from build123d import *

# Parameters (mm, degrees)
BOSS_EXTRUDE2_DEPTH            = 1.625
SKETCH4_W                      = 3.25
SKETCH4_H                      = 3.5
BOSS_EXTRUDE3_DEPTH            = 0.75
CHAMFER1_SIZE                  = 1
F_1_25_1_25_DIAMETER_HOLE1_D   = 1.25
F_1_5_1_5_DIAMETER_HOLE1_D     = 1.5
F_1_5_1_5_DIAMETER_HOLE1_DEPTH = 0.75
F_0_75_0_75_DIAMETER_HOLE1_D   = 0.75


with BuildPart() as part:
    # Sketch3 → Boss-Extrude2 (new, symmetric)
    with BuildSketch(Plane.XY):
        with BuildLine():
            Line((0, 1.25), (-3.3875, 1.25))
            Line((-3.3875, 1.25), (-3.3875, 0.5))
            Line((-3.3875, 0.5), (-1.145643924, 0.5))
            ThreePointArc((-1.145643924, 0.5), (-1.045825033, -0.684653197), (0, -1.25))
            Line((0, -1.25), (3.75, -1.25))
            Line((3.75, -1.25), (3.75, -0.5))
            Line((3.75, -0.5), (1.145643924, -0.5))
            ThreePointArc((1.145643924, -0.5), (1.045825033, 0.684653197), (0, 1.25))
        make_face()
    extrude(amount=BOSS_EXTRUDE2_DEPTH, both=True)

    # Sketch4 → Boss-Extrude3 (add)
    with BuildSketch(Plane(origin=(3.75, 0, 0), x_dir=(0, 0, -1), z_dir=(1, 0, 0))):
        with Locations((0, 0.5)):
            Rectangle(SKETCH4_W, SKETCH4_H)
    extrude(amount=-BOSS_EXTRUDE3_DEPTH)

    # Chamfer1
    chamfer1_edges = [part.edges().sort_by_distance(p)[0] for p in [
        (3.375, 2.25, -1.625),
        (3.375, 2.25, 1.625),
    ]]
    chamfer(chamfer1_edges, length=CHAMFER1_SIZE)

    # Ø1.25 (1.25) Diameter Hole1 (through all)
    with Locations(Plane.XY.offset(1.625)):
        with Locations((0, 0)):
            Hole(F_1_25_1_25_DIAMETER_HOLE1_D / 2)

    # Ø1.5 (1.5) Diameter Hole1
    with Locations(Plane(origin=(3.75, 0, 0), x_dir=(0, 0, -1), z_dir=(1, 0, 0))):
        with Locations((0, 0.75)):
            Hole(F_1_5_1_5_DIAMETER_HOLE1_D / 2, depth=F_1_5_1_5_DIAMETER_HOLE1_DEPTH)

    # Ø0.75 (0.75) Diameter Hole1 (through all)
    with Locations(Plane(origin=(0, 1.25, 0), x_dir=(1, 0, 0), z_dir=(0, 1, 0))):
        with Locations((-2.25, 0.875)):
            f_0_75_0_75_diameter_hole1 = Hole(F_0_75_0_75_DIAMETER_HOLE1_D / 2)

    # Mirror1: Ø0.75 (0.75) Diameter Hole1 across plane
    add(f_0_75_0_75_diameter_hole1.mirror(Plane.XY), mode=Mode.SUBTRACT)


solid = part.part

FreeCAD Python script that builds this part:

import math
import FreeCAD as App
import Part
import Sketcher


def edges_at(feature, points):
    """Names of the edges that pass closest to the given points."""
    edges = feature.Shape.Edges
    near = lambda p: min(range(len(edges)), key=lambda i: edges[i].distToShape(Part.Vertex(*p))[0])
    return sorted({f"Edge{near(p) + 1}" for p in points})

doc = App.newDocument("Part")
body = doc.addObject("PartDesign::Body", "Body")

sketch1 = body.newObject("Sketcher::SketchObject", "Sketch")
sketch1.AttachmentSupport = (doc.getObject("XY_Plane"), [""])
sketch1.MapMode = "FlatFace"
sketch1.addGeometry([
    Part.LineSegment(App.Vector(0, 1.2, 0), App.Vector(-3.4, 1.2, 0)),
    Part.LineSegment(App.Vector(-3.4, 1.2, 0), App.Vector(-3.4, 0.5, 0)),
    Part.LineSegment(App.Vector(-3.4, 0.5, 0), App.Vector(-1.1, 0.5, 0)),
    Part.ArcOfCircle(Part.Circle(App.Vector(0, 0, 0), App.Vector(0, 0, 1), 1.2), math.radians(156), math.radians(270)),
    Part.LineSegment(App.Vector(0, -1.2, 0), App.Vector(3.8, -1.2, 0)),
    Part.LineSegment(App.Vector(3.8, -1.2, 0), App.Vector(3.8, -0.5, 0)),
    Part.LineSegment(App.Vector(3.8, -0.5, 0), App.Vector(1.1, -0.5, 0)),
    Part.ArcOfCircle(Part.Circle(App.Vector(0, 0, 0), App.Vector(0, 0, 1), 1.2), math.radians(-24), math.radians(90)),
], False)
sketch1.addConstraint([
    Sketcher.Constraint("Coincident", 0, 2, 1, 1),
    Sketcher.Constraint("Coincident", 1, 2, 2, 1),
    Sketcher.Constraint("Coincident", 2, 2, 3, 1),
    Sketcher.Constraint("Tangent", 3, 2, 4, 1),
    Sketcher.Constraint("Coincident", 4, 2, 5, 1),
    Sketcher.Constraint("Coincident", 5, 2, 6, 1),
    Sketcher.Constraint("Coincident", 6, 2, 7, 1),
    Sketcher.Constraint("Tangent", 7, 2, 0, 1),
    Sketcher.Constraint("Horizontal", 0),
    Sketcher.Constraint("Vertical", 1),
    Sketcher.Constraint("Horizontal", 2),
    Sketcher.Constraint("Horizontal", 4),
    Sketcher.Constraint("Vertical", 5),
    Sketcher.Constraint("Horizontal", 6),
    Sketcher.Constraint("Coincident", 3, 3, -1, 1),
    Sketcher.Constraint("Coincident", 7, 3, -1, 1),
    Sketcher.Constraint("Equal", 3, 7),
    Sketcher.Constraint("Equal", 1, 5),
    Sketcher.Constraint("Radius", 3, 1.25),
    Sketcher.Constraint("DistanceY", 5, 2, 2, 2, 1.0),
    Sketcher.Constraint("DistanceX", 4, 1, 4, 2, 3.75),
    Sketcher.Constraint("DistanceX", 0, 2, 0, 1, 3.3875),
])
pad1 = body.newObject("PartDesign::Pad", "Pad")
pad1.Profile = sketch1
pad1.Length = 3.25
pad1.Midplane = True

sketch2 = body.newObject("Sketcher::SketchObject", "Sketch001")
sketch2.AttachmentSupport = (doc.getObject("YZ_Plane"), [""])
sketch2.MapMode = "FlatFace"
sketch2.AttachmentOffset = App.Placement(App.Vector(0, 0, 3.75), App.Rotation())
sketch2.addGeometry([
    Part.LineSegment(App.Vector(2.2, 1.6, 0), App.Vector(-1.2, 1.6, 0)),
    Part.LineSegment(App.Vector(-1.2, 1.6, 0), App.Vector(-1.2, -1.6, 0)),
    Part.LineSegment(App.Vector(-1.2, -1.6, 0), App.Vector(2.2, -1.6, 0)),
    Part.LineSegment(App.Vector(2.2, -1.6, 0), App.Vector(2.2, 1.6, 0)),
], False)
sketch2.addConstraint([
    Sketcher.Constraint("Coincident", 0, 2, 1, 1),
    Sketcher.Constraint("Coincident", 1, 2, 2, 1),
    Sketcher.Constraint("Coincident", 2, 2, 3, 1),
    Sketcher.Constraint("Coincident", 3, 2, 0, 1),
    Sketcher.Constraint("Horizontal", 0),
    Sketcher.Constraint("Vertical", 1),
    Sketcher.Constraint("Horizontal", 2),
    Sketcher.Constraint("Vertical", 3),
    Sketcher.Constraint("DistanceX", 0, 2, 0, 1, 3.5),
    Sketcher.Constraint("DistanceY", 1, 2, 1, 1, 3.25),
    Sketcher.Constraint("DistanceX", 0, 2, -1, 1, 1.25),
    Sketcher.Constraint("DistanceY", -1, 1, 0, 2, 1.625),
])
pad2 = body.newObject("PartDesign::Pad", "Pad001")
pad2.Profile = sketch2
pad2.Length = 0.75
pad2.Reversed = True
doc.recompute()

chamfer = body.newObject("PartDesign::Chamfer", "Chamfer")
chamfer.Base = (pad2, edges_at(pad2, [(3.375, 2.25, -1.625), (3.375, 2.25, 1.625)]))
chamfer.Size = 1

sketch3 = body.newObject("Sketcher::SketchObject", "Sketch002")
sketch3.AttachmentSupport = (doc.getObject("XY_Plane"), [""])
sketch3.MapMode = "FlatFace"
sketch3.AttachmentOffset = App.Placement(App.Vector(0, 0, 1.625), App.Rotation())
sketch3.addGeometry(Part.Circle(App.Vector(0, 0, 0), App.Vector(0, 0, 1), 0.6), False)
sketch3.addConstraint([
    Sketcher.Constraint("Coincident", 0, 3, -1, 1),
    Sketcher.Constraint("Diameter", 0, 1.25),
])
doc.recompute()
hole = body.newObject("PartDesign::Hole", "Hole")
hole.Profile = sketch3
hole.ThreadType = "None"
hole.Diameter = 1.25
hole.DepthType = "ThroughAll"

sketch4 = body.newObject("Sketcher::SketchObject", "Sketch003")
sketch4.AttachmentSupport = (doc.getObject("YZ_Plane"), [""])
sketch4.MapMode = "FlatFace"
sketch4.AttachmentOffset = App.Placement(App.Vector(0, 0, 3.75), App.Rotation())
sketch4.addGeometry(Part.Circle(App.Vector(0.8, 0, 0), App.Vector(0, 0, 1), 0.8), False)
sketch4.addConstraint([
    Sketcher.Constraint("PointOnObject", 0, 3, -1),
    Sketcher.Constraint("Diameter", 0, 1.5),
    Sketcher.Constraint("DistanceX", -1, 1, 0, 3, 0.75),
])
doc.recompute()
hole2 = body.newObject("PartDesign::Hole", "Hole001")
hole2.Profile = sketch4
hole2.ThreadType = "None"
hole2.Diameter = 1.5
hole2.DepthType = "Dimension"
hole2.Depth = 0.75
hole2.DrillPoint = "Flat"

sketch5 = body.newObject("Sketcher::SketchObject", "Sketch004")
sketch5.AttachmentSupport = (doc.getObject("XZ_Plane"), [""])
sketch5.MapMode = "FlatFace"
sketch5.AttachmentOffset = App.Placement(App.Vector(0, 0, -1.25), App.Rotation())
sketch5.addGeometry(Part.Circle(App.Vector(-2.25, -0.88, 0), App.Vector(0, 0, 1), 0.38), False)
sketch5.addConstraint([
    Sketcher.Constraint("Diameter", 0, 0.75),
    Sketcher.Constraint("DistanceX", 0, 3, -1, 1, 2.25),
    Sketcher.Constraint("DistanceY", 0, 3, -1, 1, 0.875),
])
doc.recompute()
hole3 = body.newObject("PartDesign::Hole", "Hole002")
hole3.Profile = sketch5
hole3.ThreadType = "None"
hole3.Diameter = 0.75
hole3.DepthType = "ThroughAll"
hole3.Reversed = True
doc.recompute()

mirrored = body.newObject("PartDesign::Mirrored", "Mirrored")
mirrored.Originals = [hole3]
mirrored.MirrorPlane = (doc.getObject("XY_Plane"), [""])
body.Tip = mirrored

doc.recompute()
